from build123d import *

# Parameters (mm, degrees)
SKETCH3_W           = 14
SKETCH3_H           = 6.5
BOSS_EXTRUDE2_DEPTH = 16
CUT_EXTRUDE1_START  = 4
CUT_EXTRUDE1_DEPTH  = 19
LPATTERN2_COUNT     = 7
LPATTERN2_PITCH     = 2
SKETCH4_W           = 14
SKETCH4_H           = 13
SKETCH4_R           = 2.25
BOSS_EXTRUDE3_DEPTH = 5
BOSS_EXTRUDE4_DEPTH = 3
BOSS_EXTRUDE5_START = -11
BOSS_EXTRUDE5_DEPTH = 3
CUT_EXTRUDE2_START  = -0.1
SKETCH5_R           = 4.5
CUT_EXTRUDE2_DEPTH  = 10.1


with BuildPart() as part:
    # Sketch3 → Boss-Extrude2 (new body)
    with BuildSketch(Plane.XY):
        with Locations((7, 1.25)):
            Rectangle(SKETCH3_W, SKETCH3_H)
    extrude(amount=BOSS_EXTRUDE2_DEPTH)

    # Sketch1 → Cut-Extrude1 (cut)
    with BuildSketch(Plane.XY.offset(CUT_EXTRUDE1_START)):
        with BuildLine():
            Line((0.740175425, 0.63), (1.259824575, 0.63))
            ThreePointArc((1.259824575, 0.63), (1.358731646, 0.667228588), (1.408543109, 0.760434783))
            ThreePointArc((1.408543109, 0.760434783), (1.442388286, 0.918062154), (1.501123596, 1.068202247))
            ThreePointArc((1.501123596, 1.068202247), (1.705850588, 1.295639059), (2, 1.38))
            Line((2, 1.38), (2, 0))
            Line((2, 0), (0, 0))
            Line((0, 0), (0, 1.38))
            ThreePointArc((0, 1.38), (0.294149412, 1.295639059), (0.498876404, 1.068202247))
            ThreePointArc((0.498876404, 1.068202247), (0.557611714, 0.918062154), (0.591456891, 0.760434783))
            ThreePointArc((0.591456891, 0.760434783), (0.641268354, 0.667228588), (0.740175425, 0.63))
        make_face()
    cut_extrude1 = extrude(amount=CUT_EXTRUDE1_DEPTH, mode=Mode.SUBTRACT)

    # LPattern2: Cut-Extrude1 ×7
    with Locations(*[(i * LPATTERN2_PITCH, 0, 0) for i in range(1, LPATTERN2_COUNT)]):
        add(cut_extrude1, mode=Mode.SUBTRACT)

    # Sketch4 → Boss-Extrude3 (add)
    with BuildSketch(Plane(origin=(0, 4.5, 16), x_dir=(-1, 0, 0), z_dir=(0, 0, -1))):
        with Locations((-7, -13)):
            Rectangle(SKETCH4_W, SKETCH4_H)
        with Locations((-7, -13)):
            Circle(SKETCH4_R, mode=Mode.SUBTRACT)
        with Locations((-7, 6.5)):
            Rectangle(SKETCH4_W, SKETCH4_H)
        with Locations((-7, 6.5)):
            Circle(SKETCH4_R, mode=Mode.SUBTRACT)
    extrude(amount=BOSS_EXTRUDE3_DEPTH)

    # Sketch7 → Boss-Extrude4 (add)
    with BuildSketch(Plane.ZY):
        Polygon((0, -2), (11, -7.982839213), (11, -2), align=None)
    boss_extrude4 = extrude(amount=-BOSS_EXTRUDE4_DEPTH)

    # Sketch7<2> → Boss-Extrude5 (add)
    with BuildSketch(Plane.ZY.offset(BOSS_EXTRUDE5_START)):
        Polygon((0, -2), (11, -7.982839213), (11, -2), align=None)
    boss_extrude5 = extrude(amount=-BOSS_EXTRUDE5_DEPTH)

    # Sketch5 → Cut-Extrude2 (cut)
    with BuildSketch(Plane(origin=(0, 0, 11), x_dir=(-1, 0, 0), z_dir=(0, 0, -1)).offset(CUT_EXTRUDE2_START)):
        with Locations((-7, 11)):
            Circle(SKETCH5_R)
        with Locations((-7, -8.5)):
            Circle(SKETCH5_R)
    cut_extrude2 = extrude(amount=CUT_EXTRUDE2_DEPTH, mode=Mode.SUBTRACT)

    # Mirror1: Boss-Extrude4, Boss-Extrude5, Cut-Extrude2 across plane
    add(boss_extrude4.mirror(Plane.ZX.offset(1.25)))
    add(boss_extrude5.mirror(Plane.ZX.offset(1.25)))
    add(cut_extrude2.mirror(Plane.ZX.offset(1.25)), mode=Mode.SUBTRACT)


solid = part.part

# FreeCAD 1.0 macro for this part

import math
import FreeCAD as App
import Part
import Sketcher
from FreeCAD import Vector


def add_polygon(sketch, points):
    """Adds a closed chain of lines whose ends are joined by coincident constraints."""
    first, n = sketch.GeometryCount, len(points)
    for a, b in zip(points, points[1:] + points[:1]):
        sketch.addGeometry(Part.LineSegment(App.Vector(*a, 0), App.Vector(*b, 0)), False)
    for i in range(n):
        sketch.addConstraint(Sketcher.Constraint("Coincident", first + i, 2, first + (i + 1) % n, 1))

doc = App.newDocument("Part")
body = doc.addObject("PartDesign::Body", "Body")

sketch1 = body.newObject("Sketcher::SketchObject", "Sketch")
sketch1.AttachmentSupport = (doc.getObject("XY_Plane"), [""])
sketch1.MapMode = "FlatFace"
add_polygon(sketch1, [(0, 4), (0, -2), (14, -2), (14, 4)])
sketch1.addConstraint([
    Sketcher.Constraint("Vertical", 0),
    Sketcher.Constraint("Horizontal", 1),
    Sketcher.Constraint("Vertical", 2),
    Sketcher.Constraint("Horizontal", 3),
    Sketcher.Constraint("PointOnObject", 0, 2, -2),
    Sketcher.Constraint("DistanceX", 1, 1, 1, 2, 14.0),
    Sketcher.Constraint("DistanceY", 0, 2, 0, 1, 6.5),
    Sketcher.Constraint("DistanceY", 0, 2, -1, 1, 2.0),
])
pad1 = body.newObject("PartDesign::Pad", "Pad")
pad1.Profile = sketch1
pad1.Length = 16

sketch2 = body.newObject("Sketcher::SketchObject", "Sketch001")
sketch2.AttachmentSupport = (doc.getObject("XY_Plane"), [""])
sketch2.MapMode = "FlatFace"
sketch2.AttachmentOffset = App.Placement(Vector(0, 0, 4), App.Rotation())
sketch2.addGeometry([
    Part.LineSegment(Vector(1.26, 0.63, 0), Vector(0.74, 0.63, 0)),
    Part.ArcOfCircle(Part.Circle(Vector(0.74, 0.78, 0), Vector(0, 0, 1), 0.15), math.radians(-173), math.radians(-90)),
    Part.ArcOfCircle(Part.Circle(Vector(-0.4, 0.63, 0), Vector(0, 0, 1), 1), math.radians(7.49), math.radians(25.99)),
    Part.ArcOfCircle(Part.Circle(Vector(0, 0.83, 0), Vector(0, 0, 1), 0.55), math.radians(26), math.radians(90)),
    Part.LineSegment(Vector(0, 1.38, 0), Vector(0, 0, 0)),
    Part.LineSegment(Vector(0, 0, 0), Vector(2, 0, 0)),
    Part.LineSegment(Vector(2, 0, 0), Vector(2, 1.38, 0)),
    Part.ArcOfCircle(Part.Circle(Vector(2, 0.83, 0), Vector(0, 0, 1), 0.55), math.radians(90), math.radians(154)),
    Part.ArcOfCircle(Part.Circle(Vector(2.4, 0.63, 0), Vector(0, 0, 1), 1), math.radians(154.01), math.radians(172.51)),
    Part.ArcOfCircle(Part.Circle(Vector(1.26, 0.78, 0), Vector(0, 0, 1), 0.15), math.radians(-90), math.radians(-7)),
], False)
sketch2.addConstraint([
    Sketcher.Constraint("Tangent", 0, 2, 1, 2),
    Sketcher.Constraint("Tangent", 1, 1, 2, 1),
    Sketcher.Constraint("Tangent", 2, 2, 3, 1),
    Sketcher.Constraint("Coincident", 3, 2, 4, 1),
    Sketcher.Constraint("Coincident", 4, 2, 5, 1),
    Sketcher.Constraint("Coincident", 5, 2, 6, 1),
    Sketcher.Constraint("Coincident", 6, 2, 7, 1),
    Sketcher.Constraint("Tangent", 7, 2, 8, 1),
    Sketcher.Constraint("Tangent", 8, 2, 9, 2),
    Sketcher.Constraint("Tangent", 9, 1, 0, 1),
    Sketcher.Constraint("Horizontal", 0),
    Sketcher.Constraint("Vertical", 4),
    Sketcher.Constraint("Horizontal", 5),
    Sketcher.Constraint("Vertical", 6),
    Sketcher.Constraint("Coincident", 4, 2, -1, 1),
    Sketcher.Constraint("Equal", 3, 7),
    Sketcher.Constraint("Equal", 2, 8),
    Sketcher.Constraint("Equal", 1, 9),
    Sketcher.Constraint("PointOnObject", 3, 3, -2),
    Sketcher.Constraint("Horizontal", 3, 3, 7, 3),
    Sketcher.Constraint("Horizontal", 2, 3, 8, 3),
    Sketcher.Constraint("Horizontal", 8, 3, 0, 2),
    Sketcher.Constraint("Vertical", 7, 3, 5, 2),
    Sketcher.Constraint("Radius", 2, 1.0),
    Sketcher.Constraint("DistanceX", 5, 1, 5, 2, 2.0),
    Sketcher.Constraint("Radius", 1, 0.15),
    Sketcher.Constraint("Radius", 3, 0.555),
    Sketcher.Constraint("DistanceY", 4, 2, 4, 1, 1.38),
    Sketcher.Constraint("DistanceX", 2, 3, -1, 1, 0.4),
])
pocket1 = body.newObject("PartDesign::Pocket", "Pocket")
pocket1.Profile = sketch2
pocket1.Length = 19
pocket1.Reversed = True
doc.recompute()

linearpattern = body.newObject("PartDesign::LinearPattern", "LinearPattern")
linearpattern.Originals = [pocket1]
linearpattern.Direction = (doc.getObject("X_Axis"), [""])
linearpattern.Mode = "offset"
linearpattern.Offset = 2
linearpattern.Occurrences = 7
body.Tip = linearpattern

sketch3 = body.newObject("Sketcher::SketchObject", "Sketch002")
sketch3.AttachmentSupport = (doc.getObject("XY_Plane"), [""])
sketch3.MapMode = "FlatFace"
sketch3.AttachmentOffset = App.Placement(Vector(0, 0, 16), App.Rotation())
add_polygon(sketch3, [(14, -2), (14, -15), (0, -15), (0, -2)])
sketch3.addGeometry(Part.Circle(Vector(7, -8.5, 0), Vector(0, 0, 1), 2.2), False)
add_polygon(sketch3, [(14, 17.5), (14, 4.5), (0, 4.5), (0, 17.5)])
sketch3.addGeometry(Part.Circle(Vector(7, 11, 0), Vector(0, 0, 1), 2.2), False)
sketch3.addConstraint([
    Sketcher.Constraint("Vertical", 0),
    Sketcher.Constraint("Horizontal", 1),
    Sketcher.Constraint("Vertical", 2),
    Sketcher.Constraint("Horizontal", 3),
    Sketcher.Constraint("Vertical", 5),
    Sketcher.Constraint("Horizontal", 6),
    Sketcher.Constraint("Vertical", 7),
    Sketcher.Constraint("Horizontal", 8),
    Sketcher.Constraint("Equal", 4, 9),
    Sketcher.Constraint("PointOnObject", 1, 2, -2),
    Sketcher.Constraint("PointOnObject", 6, 2, -2),
    Sketcher.Constraint("Vertical", 4, 3, 9, 3),
    Sketcher.Constraint("Vertical", 3, 2, 5, 2),
    Sketcher.Constraint("Equal", 2, 5),
    Sketcher.Constraint("Diameter", 4, 4.5),
    Sketcher.Constraint("DistanceX", 1, 2, 1, 1, 14.0),
    Sketcher.Constraint("DistanceY", 0, 2, 0, 1, 13.0),
    Sketcher.Constraint("DistanceX", -1, 1, 4, 3, 7.0),
    Sketcher.Constraint("DistanceY", -1, 1, 9, 3, 11.0),
    Sketcher.Constraint("DistanceY", 0, 2, -1, 1, 15.0),
    Sketcher.Constraint("DistanceY", 4, 3, 5, 2, 13.0),
    Sketcher.Constraint("DistanceY", 4, 3, -1, 1, 8.5),
])
pad2 = body.newObject("PartDesign::Pad", "Pad001")
pad2.Profile = sketch3
pad2.Length = 5
pad2.Reversed = True

sketch4 = body.newObject("Sketcher::SketchObject", "Sketch003")
sketch4.AttachmentSupport = (doc.getObject("YZ_Plane"), [""])
sketch4.MapMode = "FlatFace"
add_polygon(sketch4, [(-2, 0), (-8, 11), (-2, 11)])
sketch4.addConstraint([
    Sketcher.Constraint("Horizontal", 1),
    Sketcher.Constraint("Vertical", 2),
    Sketcher.Constraint("PointOnObject", 2, 2, -1),
    Sketcher.Constraint("DistanceY", 2, 2, 2, 1, 11.0),
    Sketcher.Constraint("DistanceX", 1, 2, -1, 1, 2.0),
    Sketcher.Constraint("DistanceX", 1, 1, 1, 2, 5.982839),
])
pad3 = body.newObject("PartDesign::Pad", "Pad002")
pad3.Profile = sketch4
pad3.Length = 3

sketch5 = body.newObject("Sketcher::SketchObject", "Sketch004")
sketch5.AttachmentSupport = (doc.getObject("YZ_Plane"), [""])
sketch5.MapMode = "FlatFace"
sketch5.AttachmentOffset = App.Placement(Vector(0, 0, 11), App.Rotation())
add_polygon(sketch5, [(-2, 0), (-8, 11), (-2, 11)])
sketch5.addConstraint([
    Sketcher.Constraint("Horizontal", 1),
    Sketcher.Constraint("Vertical", 2),
    Sketcher.Constraint("PointOnObject", 2, 2, -1),
    Sketcher.Constraint("DistanceY", 2, 2, 2, 1, 11.0),
    Sketcher.Constraint("DistanceX", 1, 2, -1, 1, 2.0),
    Sketcher.Constraint("DistanceX", 1, 1, 1, 2, 5.982839),
])
pad4 = body.newObject("PartDesign::Pad", "Pad003")
pad4.Profile = sketch5
pad4.Length = 3

sketch6 = body.newObject("Sketcher::SketchObject", "Sketch005")
sketch6.AttachmentSupport = (doc.getObject("XY_Plane"), [""])
sketch6.MapMode = "FlatFace"
sketch6.AttachmentOffset = App.Placement(Vector(0, 0, 11.1), App.Rotation())
sketch6.addGeometry([
    Part.Circle(Vector(7, 11, 0), Vector(0, 0, 1), 4.5),
    Part.Circle(Vector(7, -8.5, 0), Vector(0, 0, 1), 4.5),
], False)
sketch6.addConstraint([
    Sketcher.Constraint("Equal", 0, 1),
    Sketcher.Constraint("Vertical", 0, 3, 1, 3),
    Sketcher.Constraint("Diameter", 0, 9.0),
    Sketcher.Constraint("DistanceX", -1, 1, 0, 3, 7.0),
    Sketcher.Constraint("DistanceY", -1, 1, 0, 3, 11.0),
    Sketcher.Constraint("DistanceY", 1, 3, -1, 1, 8.5),
])
pocket2 = body.newObject("PartDesign::Pocket", "Pocket001")
pocket2.Profile = sketch6
pocket2.Length = 10.1
doc.recompute()

datumplane = body.newObject("PartDesign::Plane", "DatumPlane")
datumplane.AttachmentSupport = (doc.getObject("XZ_Plane"), [""])
datumplane.MapMode = "FlatFace"
datumplane.AttachmentOffset = App.Placement(Vector(0, 0, -1.25), App.Rotation())
mirrored = body.newObject("PartDesign::Mirrored", "Mirrored")
mirrored.Originals = [pad3, pad4, pocket2]
mirrored.MirrorPlane = (datumplane, [""])
body.Tip = mirrored

doc.recompute()
